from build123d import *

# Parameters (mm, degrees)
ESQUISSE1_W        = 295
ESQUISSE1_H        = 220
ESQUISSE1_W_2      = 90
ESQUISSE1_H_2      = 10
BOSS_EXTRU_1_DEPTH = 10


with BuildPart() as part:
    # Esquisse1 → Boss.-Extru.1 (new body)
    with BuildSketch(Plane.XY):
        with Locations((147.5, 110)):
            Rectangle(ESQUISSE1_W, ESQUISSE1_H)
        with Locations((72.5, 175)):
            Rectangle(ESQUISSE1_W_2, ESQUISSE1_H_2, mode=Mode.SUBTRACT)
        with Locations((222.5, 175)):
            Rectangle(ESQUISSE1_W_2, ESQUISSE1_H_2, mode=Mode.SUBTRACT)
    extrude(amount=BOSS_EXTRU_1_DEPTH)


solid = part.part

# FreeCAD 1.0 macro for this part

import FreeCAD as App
import Part
import Sketcher
from FreeCAD import Vector

doc = App.newDocument("Part")
body = doc.addObject("PartDesign::Body", "Body")

sketch1 = body.newObject("Sketcher::SketchObject", "Sketch")
sketch1.AttachmentSupport = (doc.getObject("XY_Plane"), [""])
sketch1.MapMode = "FlatFace"
sketch1.addGeometry(Part.LineSegment(Vector(0, 220, 0), Vector(0, 0, 0)), False)
sketch1.addGeometry(Part.LineSegment(Vector(0, 0, 0), Vector(295, 0, 0)), False)
sketch1.addGeometry(Part.LineSegment(Vector(295, 0, 0), Vector(295, 220, 0)), False)
sketch1.addGeometry(Part.LineSegment(Vector(295, 220, 0), Vector(0, 220, 0)), False)
sketch1.addGeometry(Part.LineSegment(Vector(118, 170, 0), Vector(28, 170, 0)), False)
sketch1.addGeometry(Part.LineSegment(Vector(28, 170, 0), Vector(28, 180, 0)), False)
sketch1.addGeometry(Part.LineSegment(Vector(28, 180, 0), Vector(118, 180, 0)), False)
sketch1.addGeometry(Part.LineSegment(Vector(118, 180, 0), Vector(118, 170, 0)), False)
sketch1.addGeometry(Part.LineSegment(Vector(268, 170, 0), Vector(178, 170, 0)), False)
sketch1.addGeometry(Part.LineSegment(Vector(178, 170, 0), Vector(178, 180, 0)), False)
sketch1.addGeometry(Part.LineSegment(Vector(178, 180, 0), Vector(268, 180, 0)), False)
sketch1.addGeometry(Part.LineSegment(Vector(268, 180, 0), Vector(268, 170, 0)), False)
sketch1.addConstraint(Sketcher.Constraint("Coincident", 0, 2, 1, 1))
sketch1.addConstraint(Sketcher.Constraint("Coincident", 1, 2, 2, 1))
sketch1.addConstraint(Sketcher.Constraint("Coincident", 2, 2, 3, 1))
sketch1.addConstraint(Sketcher.Constraint("Coincident", 3, 2, 0, 1))
sketch1.addConstraint(Sketcher.Constraint("Coincident", 4, 2, 5, 1))
sketch1.addConstraint(Sketcher.Constraint("Coincident", 5, 2, 6, 1))
sketch1.addConstraint(Sketcher.Constraint("Coincident", 6, 2, 7, 1))
sketch1.addConstraint(Sketcher.Constraint("Coincident", 7, 2, 4, 1))
sketch1.addConstraint(Sketcher.Constraint("Coincident", 8, 2, 9, 1))
sketch1.addConstraint(Sketcher.Constraint("Coincident", 9, 2, 10, 1))
sketch1.addConstraint(Sketcher.Constraint("Coincident", 10, 2, 11, 1))
sketch1.addConstraint(Sketcher.Constraint("Coincident", 11, 2, 8, 1))
sketch1.addConstraint(Sketcher.Constraint("Vertical", 0))
sketch1.addConstraint(Sketcher.Constraint("Horizontal", 1))
sketch1.addConstraint(Sketcher.Constraint("Vertical", 2))
sketch1.addConstraint(Sketcher.Constraint("Horizontal", 3))
sketch1.addConstraint(Sketcher.Constraint("Horizontal", 4))
sketch1.addConstraint(Sketcher.Constraint("Vertical", 5))
sketch1.addConstraint(Sketcher.Constraint("Horizontal", 6))
sketch1.addConstraint(Sketcher.Constraint("Vertical", 7))
sketch1.addConstraint(Sketcher.Constraint("Horizontal", 8))
sketch1.addConstraint(Sketcher.Constraint("Vertical", 9))
sketch1.addConstraint(Sketcher.Constraint("Horizontal", 10))
sketch1.addConstraint(Sketcher.Constraint("Vertical", 11))
sketch1.addConstraint(Sketcher.Constraint("Coincident", 0, 2, -1, 1))
sketch1.addConstraint(Sketcher.Constraint("Horizontal", 7, 2, 8, 2))
sketch1.addConstraint(Sketcher.Constraint("Horizontal", 6, 2, 9, 2))
sketch1.addConstraint(Sketcher.Constraint("Equal", 6, 8))
sketch1.addConstraint(Sketcher.Constraint("DistanceX", 1, 1, 1, 2, 295.0))
sketch1.addConstraint(Sketcher.Constraint("DistanceX", 4, 2, 4, 1, 90.0))
sketch1.addConstraint(Sketcher.Constraint("DistanceY", 0, 2, 0, 1, 220.0))
sketch1.addConstraint(Sketcher.Constraint("DistanceY", 5, 1, 5, 2, 10.0))
sketch1.addConstraint(Sketcher.Constraint("DistanceY", -1, 1, 4, 2, 170.0))
sketch1.addConstraint(Sketcher.Constraint("DistanceX", 7, 2, 8, 2, 60.0))
sketch1.addConstraint(Sketcher.Constraint("DistanceX", -1, 1, 4, 2, 27.5))
pad1 = body.newObject("PartDesign::Pad", "Pad")
pad1.Profile = sketch1
pad1.Length = 10

doc.recompute()
